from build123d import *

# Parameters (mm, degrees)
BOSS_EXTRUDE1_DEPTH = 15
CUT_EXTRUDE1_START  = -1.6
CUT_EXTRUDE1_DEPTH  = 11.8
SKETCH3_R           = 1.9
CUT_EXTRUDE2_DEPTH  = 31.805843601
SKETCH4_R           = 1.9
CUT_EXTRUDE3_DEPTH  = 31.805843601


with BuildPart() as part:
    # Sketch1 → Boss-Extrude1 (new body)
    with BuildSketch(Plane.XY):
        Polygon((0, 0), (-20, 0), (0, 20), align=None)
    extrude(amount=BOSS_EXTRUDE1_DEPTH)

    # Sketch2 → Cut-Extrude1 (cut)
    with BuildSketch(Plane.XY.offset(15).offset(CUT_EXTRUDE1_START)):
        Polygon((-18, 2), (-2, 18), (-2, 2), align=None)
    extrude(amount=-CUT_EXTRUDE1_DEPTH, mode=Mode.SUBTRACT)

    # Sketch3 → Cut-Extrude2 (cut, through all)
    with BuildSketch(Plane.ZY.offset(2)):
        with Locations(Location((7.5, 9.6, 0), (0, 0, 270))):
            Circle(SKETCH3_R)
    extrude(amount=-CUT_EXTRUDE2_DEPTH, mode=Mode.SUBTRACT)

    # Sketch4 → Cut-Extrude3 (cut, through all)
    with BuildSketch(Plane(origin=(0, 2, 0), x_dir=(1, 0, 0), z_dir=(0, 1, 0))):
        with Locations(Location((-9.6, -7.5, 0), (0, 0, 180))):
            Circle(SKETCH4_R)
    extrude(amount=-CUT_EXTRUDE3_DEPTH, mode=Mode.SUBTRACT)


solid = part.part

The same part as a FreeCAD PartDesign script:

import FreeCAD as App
import Part
import Sketcher

V = App.Vector


def add_polygon(sketch, points):
    """Adds a closed chain of lines whose ends are joined by coincident constraints."""
    first, n = sketch.GeometryCount, len(points)
    for a, b in zip(points, points[1:] + points[:1]):
        sketch.addGeometry(Part.LineSegment(App.Vector(*a, 0), App.Vector(*b, 0)), False)
    for i in range(n):
        sketch.addConstraint(Sketcher.Constraint("Coincident", first + i, 2, first + (i + 1) % n, 1))

doc = App.newDocument("Part")
body = doc.addObject("PartDesign::Body", "Body")

# Sketch on XY plane
sketch1 = doc.addObject("Sketcher::SketchObject", "Sketch")
body.addObject(sketch1)
sketch1.AttachmentSupport = (doc.XY_Plane, [""])
sketch1.MapMode = "FlatFace"
add_polygon(sketch1, [(-20, 0), (0, 0), (0, 20)])  # lines 0-2
sketch1.addConstraint([
    Sketcher.Constraint("Horizontal", 0),
    Sketcher.Constraint("Vertical", 1),
    Sketcher.Constraint("Coincident", 0, 2, -1, 1),
    Sketcher.Constraint("Equal", 0, 1),
    Sketcher.Constraint("DistanceX", 0, 1, 0, 2, 20.0),
])
pad1 = doc.addObject("PartDesign::Pad", "Pad")
body.addObject(pad1)
pad1.Profile = sketch1
pad1.Length = 15

# Sketch on XY plane
sketch2 = doc.addObject("Sketcher::SketchObject", "Sketch001")
body.addObject(sketch2)
sketch2.AttachmentSupport = (doc.XY_Plane, [""])
sketch2.MapMode = "FlatFace"
sketch2.AttachmentOffset = App.Placement(V(0, 0, 13.4), App.Rotation())
add_polygon(sketch2, [(-2, 18), (-18, 2), (-2, 2)])  # lines 0-2
sketch2.addConstraint([
    Sketcher.Constraint("Horizontal", 1),
    Sketcher.Constraint("Vertical", 2),
    Sketcher.Constraint("Equal", 1, 2),
    Sketcher.Constraint("DistanceX", 1, 1, 1, 2, 16.0),
    Sketcher.Constraint("DistanceX", 0, 2, -1, 1, 18.0),
    Sketcher.Constraint("DistanceY", -1, 1, 0, 2, 2.0),
])
pocket1 = doc.addObject("PartDesign::Pocket", "Pocket")
body.addObject(pocket1)
pocket1.Profile = sketch2
pocket1.Length = 11.8

# Sketch on YZ plane
sketch3 = doc.addObject("Sketcher::SketchObject", "Sketch002")
body.addObject(sketch3)
sketch3.AttachmentSupport = (doc.YZ_Plane, [""])
sketch3.MapMode = "FlatFace"
sketch3.AttachmentOffset = App.Placement(V(0, 0, -2), App.Rotation())
sketch3.addGeometry(Part.Circle(V(9.6, 7.5, 0), V(0, 0, 1), 1.9), False)
sketch3.addConstraint([
    Sketcher.Constraint("Diameter", 0, 3.8),
    Sketcher.Constraint("DistanceX", -1, 1, 0, 3, 9.6),
    Sketcher.Constraint("DistanceY", -1, 1, 0, 3, 7.5),
])
pocket2 = doc.addObject("PartDesign::Pocket", "Pocket001")
body.addObject(pocket2)
pocket2.Profile = sketch3
pocket2.Type = "ThroughAll"
pocket2.Reversed = True

# Sketch on XZ plane
sketch4 = doc.addObject("Sketcher::SketchObject", "Sketch003")
body.addObject(sketch4)
sketch4.AttachmentSupport = (doc.XZ_Plane, [""])
sketch4.MapMode = "FlatFace"
sketch4.AttachmentOffset = App.Placement(V(0, 0, -2), App.Rotation())
sketch4.addGeometry(Part.Circle(V(-9.6, 7.5, 0), V(0, 0, 1), 1.9), False)
sketch4.addConstraint([
    Sketcher.Constraint("Diameter", 0, 3.8),
    Sketcher.Constraint("DistanceX", 0, 3, -1, 1, 9.6),
    Sketcher.Constraint("DistanceY", -1, 1, 0, 3, 7.5),
])
pocket3 = doc.addObject("PartDesign::Pocket", "Pocket002")
body.addObject(pocket3)
pocket3.Profile = sketch4
pocket3.Type = "ThroughAll"
pocket3.Reversed = True

doc.recompute()
